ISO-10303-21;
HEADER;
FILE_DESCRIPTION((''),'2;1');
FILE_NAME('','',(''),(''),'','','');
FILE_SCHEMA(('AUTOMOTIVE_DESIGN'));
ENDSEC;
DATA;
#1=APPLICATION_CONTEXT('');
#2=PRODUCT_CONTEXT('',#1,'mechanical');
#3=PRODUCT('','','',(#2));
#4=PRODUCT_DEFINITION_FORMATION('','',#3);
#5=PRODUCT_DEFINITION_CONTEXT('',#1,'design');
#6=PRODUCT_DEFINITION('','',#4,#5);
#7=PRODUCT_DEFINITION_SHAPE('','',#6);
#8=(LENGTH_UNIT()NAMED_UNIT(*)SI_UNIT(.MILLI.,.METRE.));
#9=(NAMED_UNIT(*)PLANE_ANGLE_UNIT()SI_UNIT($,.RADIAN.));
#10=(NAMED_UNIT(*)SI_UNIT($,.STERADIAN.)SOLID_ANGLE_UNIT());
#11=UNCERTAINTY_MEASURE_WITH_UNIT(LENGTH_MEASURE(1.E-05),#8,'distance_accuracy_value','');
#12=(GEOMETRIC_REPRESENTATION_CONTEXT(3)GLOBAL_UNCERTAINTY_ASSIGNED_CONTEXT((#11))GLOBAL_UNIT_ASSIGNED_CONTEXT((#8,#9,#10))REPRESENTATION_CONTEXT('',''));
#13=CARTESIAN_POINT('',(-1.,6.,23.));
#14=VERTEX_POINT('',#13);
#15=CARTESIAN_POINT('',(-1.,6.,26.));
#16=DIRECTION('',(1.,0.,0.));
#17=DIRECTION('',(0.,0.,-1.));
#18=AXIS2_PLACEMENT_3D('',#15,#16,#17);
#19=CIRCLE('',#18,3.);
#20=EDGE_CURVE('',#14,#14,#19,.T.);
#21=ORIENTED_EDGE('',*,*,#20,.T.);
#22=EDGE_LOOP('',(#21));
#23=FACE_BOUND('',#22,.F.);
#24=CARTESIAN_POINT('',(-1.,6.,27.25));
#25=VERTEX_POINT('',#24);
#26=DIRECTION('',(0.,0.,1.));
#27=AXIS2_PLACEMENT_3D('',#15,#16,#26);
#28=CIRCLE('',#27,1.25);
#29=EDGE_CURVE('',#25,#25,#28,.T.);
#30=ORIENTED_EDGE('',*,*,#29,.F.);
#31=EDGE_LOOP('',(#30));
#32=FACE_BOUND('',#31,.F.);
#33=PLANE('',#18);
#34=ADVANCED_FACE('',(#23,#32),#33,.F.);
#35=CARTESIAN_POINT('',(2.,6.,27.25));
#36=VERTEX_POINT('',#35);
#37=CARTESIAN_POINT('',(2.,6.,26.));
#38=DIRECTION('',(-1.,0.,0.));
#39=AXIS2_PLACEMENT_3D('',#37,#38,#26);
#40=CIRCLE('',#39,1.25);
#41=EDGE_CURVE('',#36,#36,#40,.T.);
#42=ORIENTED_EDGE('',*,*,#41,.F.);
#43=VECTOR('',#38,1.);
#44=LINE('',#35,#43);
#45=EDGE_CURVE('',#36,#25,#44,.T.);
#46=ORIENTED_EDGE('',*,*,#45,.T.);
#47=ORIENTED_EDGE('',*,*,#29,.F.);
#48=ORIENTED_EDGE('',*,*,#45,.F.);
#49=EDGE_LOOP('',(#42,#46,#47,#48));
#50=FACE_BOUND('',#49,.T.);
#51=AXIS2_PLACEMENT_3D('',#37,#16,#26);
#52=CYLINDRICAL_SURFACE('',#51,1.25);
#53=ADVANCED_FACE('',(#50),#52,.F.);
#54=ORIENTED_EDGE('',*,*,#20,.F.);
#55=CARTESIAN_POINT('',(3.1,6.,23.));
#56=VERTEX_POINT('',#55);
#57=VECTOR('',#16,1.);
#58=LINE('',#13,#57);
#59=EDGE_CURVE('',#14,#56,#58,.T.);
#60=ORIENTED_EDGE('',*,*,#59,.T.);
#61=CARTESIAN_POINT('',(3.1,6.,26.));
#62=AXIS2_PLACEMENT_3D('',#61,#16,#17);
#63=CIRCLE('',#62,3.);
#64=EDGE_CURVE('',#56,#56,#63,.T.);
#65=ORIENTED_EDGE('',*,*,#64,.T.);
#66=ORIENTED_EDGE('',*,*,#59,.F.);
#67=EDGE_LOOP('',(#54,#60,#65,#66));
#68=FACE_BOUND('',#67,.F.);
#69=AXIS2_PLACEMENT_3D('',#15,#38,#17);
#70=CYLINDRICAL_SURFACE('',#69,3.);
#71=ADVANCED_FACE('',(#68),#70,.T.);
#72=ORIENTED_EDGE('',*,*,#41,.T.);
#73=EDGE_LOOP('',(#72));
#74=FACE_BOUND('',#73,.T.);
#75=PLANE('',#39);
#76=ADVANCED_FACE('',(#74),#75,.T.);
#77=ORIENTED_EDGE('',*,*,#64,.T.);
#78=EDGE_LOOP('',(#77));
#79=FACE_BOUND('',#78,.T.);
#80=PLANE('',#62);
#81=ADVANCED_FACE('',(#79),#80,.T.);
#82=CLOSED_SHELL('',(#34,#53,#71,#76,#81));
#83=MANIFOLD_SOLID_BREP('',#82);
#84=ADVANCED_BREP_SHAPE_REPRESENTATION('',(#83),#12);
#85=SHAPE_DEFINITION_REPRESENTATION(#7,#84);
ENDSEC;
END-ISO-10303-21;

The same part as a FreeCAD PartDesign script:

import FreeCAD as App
import Part
import Sketcher

V = App.Vector
Q = App.Units.Quantity

doc = App.newDocument("Part")
params = doc.addObject("Spreadsheet::Sheet", "Params")
for row, (alias, value) in enumerate([
    ("sketch1_diameter", "2.5 mm"),
    ("pad1_length", "5 mm"),
    ("sketch2_diameter", "6 mm"),
    ("pad2_length", "4.1 mm"),
], start=1):
    params.set(f"A{row}", alias)
    params.set(f"B{row}", "=" + value)
    params.setAlias(f"B{row}", alias)

body = doc.addObject("PartDesign::Body", "Body")

sketch1 = body.newObject("Sketcher::SketchObject", "Sketch")
sketch1.AttachmentSupport = (doc.getObject("YZ_Plane"), [""])
sketch1.MapMode = "FlatFace"
sketch1.AttachmentOffset = App.Placement(V(0, 0, 2), App.Rotation())
sketch1.addGeometry(Part.Circle(V(6, 26, 0), V(0, 0, 1), 1.2), False)
sketch1.addConstraint([
    Sketcher.Constraint("Diameter", 0, Q("2.5 mm")),
    Sketcher.Constraint("DistanceX", -1, 1, 0, 3, Q("6 mm")),
    Sketcher.Constraint("DistanceY", -1, 1, 0, 3, Q("26 mm")),
])
sketch1.setExpression("Constraints[0]", "Params.sketch1_diameter")
pad1 = body.newObject("PartDesign::Pad", "Pad")
pad1.Profile = sketch1
pad1.setExpression("Length", "Params.pad1_length")
pad1.Reversed = True
body2 = doc.addObject("PartDesign::Body", "Body001")

sketch2 = body2.newObject("Sketcher::SketchObject", "Sketch001")
sketch2.AttachmentSupport = (doc.getObject("YZ_Plane001"), [""])
sketch2.MapMode = "FlatFace"
sketch2.AttachmentOffset = App.Placement(V(0, 0, -1), App.Rotation())
sketch2.addGeometry(Part.Circle(V(6, 26, 0), V(0, 0, 1), 3), False)
sketch2.addConstraint([
    Sketcher.Constraint("Diameter", 0, Q("6 mm")),
    Sketcher.Constraint("DistanceX", -1, 1, 0, 3, Q("6 mm")),
    Sketcher.Constraint("DistanceY", -1, 1, 0, 3, Q("26 mm")),
])
sketch2.setExpression("Constraints[0]", "Params.sketch2_diameter")
pad2 = body2.newObject("PartDesign::Pad", "Pad001")
pad2.Profile = sketch2
pad2.setExpression("Length", "Params.pad2_length")
doc.recompute()

boolean = body2.newObject("PartDesign::Boolean", "Boolean")
boolean.Type = "Cut"
boolean.addObjects([body])

doc.recompute()
